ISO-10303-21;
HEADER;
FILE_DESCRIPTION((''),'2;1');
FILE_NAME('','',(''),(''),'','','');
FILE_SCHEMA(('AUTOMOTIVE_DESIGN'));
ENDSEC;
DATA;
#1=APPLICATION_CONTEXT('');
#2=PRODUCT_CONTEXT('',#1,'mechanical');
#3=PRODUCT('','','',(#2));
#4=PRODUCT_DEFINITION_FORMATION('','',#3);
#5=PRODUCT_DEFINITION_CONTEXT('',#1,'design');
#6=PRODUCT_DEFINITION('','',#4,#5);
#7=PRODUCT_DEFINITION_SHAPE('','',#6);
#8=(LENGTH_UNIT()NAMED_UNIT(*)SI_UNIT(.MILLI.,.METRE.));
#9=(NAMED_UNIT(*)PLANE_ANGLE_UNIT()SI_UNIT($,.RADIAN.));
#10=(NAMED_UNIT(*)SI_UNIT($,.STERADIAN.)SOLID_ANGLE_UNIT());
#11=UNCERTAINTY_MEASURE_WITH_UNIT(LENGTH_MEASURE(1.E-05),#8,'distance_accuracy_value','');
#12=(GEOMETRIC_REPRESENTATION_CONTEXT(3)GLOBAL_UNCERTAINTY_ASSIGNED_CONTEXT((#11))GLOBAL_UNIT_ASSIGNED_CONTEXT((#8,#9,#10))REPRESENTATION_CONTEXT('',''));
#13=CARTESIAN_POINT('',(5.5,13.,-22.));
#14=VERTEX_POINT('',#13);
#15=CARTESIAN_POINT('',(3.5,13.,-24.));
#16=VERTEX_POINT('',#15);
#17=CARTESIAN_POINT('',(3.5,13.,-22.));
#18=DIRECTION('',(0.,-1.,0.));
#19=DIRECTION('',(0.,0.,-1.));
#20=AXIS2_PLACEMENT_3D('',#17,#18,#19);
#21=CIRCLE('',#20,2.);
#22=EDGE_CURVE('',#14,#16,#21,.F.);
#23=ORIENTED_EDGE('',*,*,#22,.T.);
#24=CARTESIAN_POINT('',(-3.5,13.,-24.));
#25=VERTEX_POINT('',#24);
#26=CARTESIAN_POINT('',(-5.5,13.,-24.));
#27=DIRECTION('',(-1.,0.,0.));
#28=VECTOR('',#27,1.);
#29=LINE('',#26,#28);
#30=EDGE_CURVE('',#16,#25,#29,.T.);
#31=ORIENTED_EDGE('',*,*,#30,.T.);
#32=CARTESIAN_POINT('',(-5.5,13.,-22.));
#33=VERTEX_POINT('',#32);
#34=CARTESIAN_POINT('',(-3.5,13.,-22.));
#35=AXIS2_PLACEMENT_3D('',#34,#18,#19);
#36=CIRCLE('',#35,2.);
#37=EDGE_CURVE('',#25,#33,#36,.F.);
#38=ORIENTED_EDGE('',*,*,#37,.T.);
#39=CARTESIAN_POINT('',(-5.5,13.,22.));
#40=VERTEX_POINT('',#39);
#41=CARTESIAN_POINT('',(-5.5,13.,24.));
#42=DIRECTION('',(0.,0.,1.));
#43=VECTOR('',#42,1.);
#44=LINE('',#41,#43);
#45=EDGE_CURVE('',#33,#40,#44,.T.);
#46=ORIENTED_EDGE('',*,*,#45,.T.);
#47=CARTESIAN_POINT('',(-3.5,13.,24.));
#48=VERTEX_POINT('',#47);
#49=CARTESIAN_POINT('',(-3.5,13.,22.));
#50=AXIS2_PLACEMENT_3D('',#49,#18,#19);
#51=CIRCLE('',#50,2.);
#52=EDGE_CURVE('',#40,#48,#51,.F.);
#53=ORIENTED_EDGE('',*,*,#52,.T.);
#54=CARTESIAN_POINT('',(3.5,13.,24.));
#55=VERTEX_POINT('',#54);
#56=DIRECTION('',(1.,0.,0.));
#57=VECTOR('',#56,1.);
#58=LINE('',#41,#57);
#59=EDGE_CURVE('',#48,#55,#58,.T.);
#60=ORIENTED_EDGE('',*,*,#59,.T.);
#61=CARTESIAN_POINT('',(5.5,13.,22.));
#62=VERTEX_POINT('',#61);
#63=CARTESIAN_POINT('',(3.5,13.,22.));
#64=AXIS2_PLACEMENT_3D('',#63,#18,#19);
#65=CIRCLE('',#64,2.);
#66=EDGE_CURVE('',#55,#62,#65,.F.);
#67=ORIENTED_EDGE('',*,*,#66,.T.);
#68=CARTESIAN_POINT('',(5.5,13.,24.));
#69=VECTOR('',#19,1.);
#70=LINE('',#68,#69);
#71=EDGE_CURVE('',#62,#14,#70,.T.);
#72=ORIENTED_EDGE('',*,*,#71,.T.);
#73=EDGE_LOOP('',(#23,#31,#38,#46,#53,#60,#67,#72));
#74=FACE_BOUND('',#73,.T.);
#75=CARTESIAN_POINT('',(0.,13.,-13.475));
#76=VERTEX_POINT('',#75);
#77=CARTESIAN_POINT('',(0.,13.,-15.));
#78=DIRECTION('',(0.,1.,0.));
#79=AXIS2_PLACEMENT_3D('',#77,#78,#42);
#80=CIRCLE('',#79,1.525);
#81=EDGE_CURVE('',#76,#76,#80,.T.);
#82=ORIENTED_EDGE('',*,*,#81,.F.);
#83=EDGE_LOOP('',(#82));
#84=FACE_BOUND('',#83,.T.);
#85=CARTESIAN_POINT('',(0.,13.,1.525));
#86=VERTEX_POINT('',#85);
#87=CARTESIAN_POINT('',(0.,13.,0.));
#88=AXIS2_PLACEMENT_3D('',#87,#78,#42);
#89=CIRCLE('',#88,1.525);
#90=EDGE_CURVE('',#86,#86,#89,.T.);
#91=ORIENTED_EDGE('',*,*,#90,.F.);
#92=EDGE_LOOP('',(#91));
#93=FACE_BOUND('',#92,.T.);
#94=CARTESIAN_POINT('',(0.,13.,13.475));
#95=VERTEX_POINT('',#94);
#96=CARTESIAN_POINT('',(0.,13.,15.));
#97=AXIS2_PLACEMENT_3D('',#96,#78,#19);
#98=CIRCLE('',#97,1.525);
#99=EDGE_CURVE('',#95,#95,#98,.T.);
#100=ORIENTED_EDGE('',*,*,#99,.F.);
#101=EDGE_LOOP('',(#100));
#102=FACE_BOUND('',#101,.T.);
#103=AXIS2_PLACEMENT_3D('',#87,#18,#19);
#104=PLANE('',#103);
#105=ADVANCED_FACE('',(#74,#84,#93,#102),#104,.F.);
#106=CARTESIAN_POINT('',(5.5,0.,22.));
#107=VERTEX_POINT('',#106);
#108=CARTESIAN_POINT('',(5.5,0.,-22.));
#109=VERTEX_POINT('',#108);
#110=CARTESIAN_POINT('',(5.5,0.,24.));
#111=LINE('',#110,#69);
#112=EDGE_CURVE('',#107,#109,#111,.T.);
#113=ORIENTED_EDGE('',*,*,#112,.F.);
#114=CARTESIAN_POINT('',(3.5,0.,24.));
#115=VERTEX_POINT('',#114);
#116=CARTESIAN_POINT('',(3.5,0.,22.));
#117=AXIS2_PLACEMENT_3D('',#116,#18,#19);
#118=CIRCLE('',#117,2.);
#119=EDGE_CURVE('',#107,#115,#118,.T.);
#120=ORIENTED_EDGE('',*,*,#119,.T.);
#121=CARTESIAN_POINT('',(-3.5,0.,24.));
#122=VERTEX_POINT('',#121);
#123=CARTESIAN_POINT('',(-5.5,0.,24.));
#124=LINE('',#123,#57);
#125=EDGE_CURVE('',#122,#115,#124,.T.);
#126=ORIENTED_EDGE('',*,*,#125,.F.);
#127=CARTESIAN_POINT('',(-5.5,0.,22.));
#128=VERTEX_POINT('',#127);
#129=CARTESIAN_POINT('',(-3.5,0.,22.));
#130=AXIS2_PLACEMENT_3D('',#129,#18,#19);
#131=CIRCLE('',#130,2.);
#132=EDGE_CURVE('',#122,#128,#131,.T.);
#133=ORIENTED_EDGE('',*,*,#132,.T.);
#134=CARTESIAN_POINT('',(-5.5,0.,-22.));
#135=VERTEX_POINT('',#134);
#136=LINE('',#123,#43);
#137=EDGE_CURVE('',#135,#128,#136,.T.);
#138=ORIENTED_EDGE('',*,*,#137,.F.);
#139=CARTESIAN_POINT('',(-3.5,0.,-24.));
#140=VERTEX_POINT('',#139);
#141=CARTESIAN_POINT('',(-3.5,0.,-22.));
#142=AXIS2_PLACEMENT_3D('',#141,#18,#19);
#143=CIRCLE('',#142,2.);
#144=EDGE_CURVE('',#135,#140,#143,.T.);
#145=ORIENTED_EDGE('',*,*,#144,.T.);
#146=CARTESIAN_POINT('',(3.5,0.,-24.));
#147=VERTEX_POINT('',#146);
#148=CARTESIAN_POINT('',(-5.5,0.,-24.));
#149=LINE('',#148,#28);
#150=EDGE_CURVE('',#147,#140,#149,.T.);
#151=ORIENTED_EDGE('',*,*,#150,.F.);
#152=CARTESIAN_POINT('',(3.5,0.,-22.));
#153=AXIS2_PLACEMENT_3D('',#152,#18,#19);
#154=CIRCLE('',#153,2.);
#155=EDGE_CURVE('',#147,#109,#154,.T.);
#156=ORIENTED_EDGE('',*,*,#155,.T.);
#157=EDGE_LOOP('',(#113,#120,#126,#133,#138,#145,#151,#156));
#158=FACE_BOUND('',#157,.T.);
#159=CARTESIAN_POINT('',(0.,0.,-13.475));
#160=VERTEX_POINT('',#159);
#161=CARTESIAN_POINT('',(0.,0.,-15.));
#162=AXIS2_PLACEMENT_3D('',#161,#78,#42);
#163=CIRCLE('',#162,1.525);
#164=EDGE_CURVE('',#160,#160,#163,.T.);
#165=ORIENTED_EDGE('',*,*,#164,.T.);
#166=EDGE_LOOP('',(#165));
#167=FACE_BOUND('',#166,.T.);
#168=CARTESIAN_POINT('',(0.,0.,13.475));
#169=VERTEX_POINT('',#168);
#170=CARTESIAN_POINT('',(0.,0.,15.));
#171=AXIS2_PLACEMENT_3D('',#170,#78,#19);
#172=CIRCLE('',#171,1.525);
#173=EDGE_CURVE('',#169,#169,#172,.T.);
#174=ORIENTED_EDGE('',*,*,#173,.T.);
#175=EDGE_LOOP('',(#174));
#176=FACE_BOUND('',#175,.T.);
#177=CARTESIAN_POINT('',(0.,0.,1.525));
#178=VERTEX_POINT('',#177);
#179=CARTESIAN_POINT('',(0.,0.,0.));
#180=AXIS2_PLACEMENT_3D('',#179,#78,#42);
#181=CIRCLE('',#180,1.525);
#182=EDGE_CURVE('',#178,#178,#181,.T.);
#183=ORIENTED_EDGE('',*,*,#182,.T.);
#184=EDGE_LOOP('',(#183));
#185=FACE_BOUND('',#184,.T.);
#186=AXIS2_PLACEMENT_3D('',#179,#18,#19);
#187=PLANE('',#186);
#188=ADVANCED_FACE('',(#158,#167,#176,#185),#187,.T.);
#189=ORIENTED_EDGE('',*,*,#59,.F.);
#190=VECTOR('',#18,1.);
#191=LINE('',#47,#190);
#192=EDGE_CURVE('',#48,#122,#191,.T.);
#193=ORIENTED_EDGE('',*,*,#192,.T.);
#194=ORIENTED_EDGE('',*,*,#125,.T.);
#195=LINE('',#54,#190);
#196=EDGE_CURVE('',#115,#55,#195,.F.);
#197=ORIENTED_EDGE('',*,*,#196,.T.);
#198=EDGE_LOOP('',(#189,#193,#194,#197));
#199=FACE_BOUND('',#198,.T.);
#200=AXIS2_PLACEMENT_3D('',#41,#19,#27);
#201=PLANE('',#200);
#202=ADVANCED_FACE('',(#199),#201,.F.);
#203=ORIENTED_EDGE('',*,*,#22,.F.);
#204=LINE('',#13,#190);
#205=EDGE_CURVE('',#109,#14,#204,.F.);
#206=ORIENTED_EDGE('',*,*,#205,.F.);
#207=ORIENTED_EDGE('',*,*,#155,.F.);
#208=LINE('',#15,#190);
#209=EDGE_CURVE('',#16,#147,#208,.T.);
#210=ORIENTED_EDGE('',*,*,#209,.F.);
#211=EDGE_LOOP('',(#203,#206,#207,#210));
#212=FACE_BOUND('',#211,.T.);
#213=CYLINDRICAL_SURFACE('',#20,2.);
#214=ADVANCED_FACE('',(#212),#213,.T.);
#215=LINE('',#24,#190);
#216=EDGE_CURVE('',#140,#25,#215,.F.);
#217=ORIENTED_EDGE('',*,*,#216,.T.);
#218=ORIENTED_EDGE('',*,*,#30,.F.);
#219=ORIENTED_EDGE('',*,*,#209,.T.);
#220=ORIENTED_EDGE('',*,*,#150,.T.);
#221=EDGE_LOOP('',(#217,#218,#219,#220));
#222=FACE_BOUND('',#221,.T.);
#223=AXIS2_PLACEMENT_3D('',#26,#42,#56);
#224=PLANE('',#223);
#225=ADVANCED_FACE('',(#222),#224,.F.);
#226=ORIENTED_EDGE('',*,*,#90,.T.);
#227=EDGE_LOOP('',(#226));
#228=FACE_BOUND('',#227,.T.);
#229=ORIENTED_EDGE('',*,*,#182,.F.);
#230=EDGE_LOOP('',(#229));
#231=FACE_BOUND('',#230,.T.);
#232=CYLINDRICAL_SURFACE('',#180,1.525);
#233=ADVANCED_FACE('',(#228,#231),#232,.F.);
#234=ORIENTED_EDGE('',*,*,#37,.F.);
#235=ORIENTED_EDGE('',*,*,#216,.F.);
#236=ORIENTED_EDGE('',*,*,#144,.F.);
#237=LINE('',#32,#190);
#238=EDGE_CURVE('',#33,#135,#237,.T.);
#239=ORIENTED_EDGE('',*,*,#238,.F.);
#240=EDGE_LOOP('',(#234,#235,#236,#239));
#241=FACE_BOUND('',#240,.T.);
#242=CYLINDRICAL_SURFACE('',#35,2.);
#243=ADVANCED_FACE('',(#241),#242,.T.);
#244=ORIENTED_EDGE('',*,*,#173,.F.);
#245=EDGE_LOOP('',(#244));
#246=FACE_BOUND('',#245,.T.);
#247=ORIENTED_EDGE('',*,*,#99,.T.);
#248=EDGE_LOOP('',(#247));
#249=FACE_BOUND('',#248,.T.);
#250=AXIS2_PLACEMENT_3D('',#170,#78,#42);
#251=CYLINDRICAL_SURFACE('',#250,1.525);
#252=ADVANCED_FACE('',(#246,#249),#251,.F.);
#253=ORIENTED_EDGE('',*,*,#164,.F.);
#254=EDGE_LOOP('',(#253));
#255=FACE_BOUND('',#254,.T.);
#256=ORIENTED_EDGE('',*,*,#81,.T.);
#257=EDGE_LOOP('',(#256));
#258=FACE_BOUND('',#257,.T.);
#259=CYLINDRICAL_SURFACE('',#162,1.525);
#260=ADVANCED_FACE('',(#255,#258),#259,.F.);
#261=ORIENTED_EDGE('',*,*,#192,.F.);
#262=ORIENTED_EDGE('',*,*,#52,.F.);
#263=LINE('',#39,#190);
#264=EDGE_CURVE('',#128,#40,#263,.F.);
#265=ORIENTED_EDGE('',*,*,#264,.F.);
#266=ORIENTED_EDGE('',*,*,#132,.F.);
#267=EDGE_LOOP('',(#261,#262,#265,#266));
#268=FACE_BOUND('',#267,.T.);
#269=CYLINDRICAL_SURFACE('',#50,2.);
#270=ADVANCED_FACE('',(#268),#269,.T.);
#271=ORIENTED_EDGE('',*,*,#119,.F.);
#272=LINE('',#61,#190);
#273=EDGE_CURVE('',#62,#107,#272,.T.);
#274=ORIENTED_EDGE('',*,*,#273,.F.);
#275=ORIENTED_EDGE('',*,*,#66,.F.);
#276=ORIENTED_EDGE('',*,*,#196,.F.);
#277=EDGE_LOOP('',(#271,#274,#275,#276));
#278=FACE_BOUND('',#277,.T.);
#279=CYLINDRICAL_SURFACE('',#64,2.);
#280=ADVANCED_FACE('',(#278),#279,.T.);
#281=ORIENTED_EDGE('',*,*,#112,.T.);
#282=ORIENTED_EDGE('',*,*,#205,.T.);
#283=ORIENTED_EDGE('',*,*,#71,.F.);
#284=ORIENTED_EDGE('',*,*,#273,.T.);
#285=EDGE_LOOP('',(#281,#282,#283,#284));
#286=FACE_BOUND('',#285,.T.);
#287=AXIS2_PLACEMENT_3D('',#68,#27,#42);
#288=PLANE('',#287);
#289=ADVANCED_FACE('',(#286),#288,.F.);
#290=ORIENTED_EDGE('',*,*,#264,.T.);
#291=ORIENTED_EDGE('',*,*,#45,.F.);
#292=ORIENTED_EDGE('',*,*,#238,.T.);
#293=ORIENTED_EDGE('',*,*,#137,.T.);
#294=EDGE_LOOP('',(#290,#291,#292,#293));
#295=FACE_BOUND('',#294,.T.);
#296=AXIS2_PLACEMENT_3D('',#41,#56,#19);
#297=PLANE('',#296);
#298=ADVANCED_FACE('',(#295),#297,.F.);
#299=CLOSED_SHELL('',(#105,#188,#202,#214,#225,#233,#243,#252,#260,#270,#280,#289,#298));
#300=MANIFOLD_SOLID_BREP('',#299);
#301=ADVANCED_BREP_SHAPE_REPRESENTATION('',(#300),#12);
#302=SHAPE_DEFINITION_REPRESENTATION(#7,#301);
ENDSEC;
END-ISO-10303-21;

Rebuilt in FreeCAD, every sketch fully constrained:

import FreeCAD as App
import Part
import Sketcher

V = App.Vector
Q = App.Units.Quantity


def edges_at(feature, points):
    """Names of the edges that pass closest to the given points."""
    edges = feature.Shape.Edges
    near = lambda p: min(range(len(edges)), key=lambda i: edges[i].distToShape(Part.Vertex(*p))[0])
    return sorted({f"Edge{near(p) + 1}" for p in points})

doc = App.newDocument("Part")
body = doc.addObject("PartDesign::Body", "Body")

sketch1 = body.newObject("Sketcher::SketchObject", "Sketch")
sketch1.AttachmentSupport = (doc.getObject("XZ_Plane"), [""])
sketch1.MapMode = "FlatFace"
sketch1.addGeometry([
    Part.LineSegment(V(-6, -24, 0), V(-6, 24, 0)),
    Part.LineSegment(V(-6, 24, 0), V(6, 24, 0)),
    Part.LineSegment(V(6, 24, 0), V(6, -24, 0)),
    Part.LineSegment(V(6, -24, 0), V(-6, -24, 0)),
], False)
sketch1.addConstraint([
    Sketcher.Constraint("Coincident", 0, 2, 1, 1),
    Sketcher.Constraint("Coincident", 1, 2, 2, 1),
    Sketcher.Constraint("Coincident", 2, 2, 3, 1),
    Sketcher.Constraint("Coincident", 3, 2, 0, 1),
    Sketcher.Constraint("Vertical", 0),
    Sketcher.Constraint("Horizontal", 1),
    Sketcher.Constraint("Vertical", 2),
    Sketcher.Constraint("Horizontal", 3),
    Sketcher.Constraint("Symmetric", 0, 2, 2, 2, -1, 1),
    Sketcher.Constraint("DistanceX", 1, 1, 1, 2, Q("11 mm")),
    Sketcher.Constraint("DistanceY", 0, 1, 0, 2, Q("48 mm")),
])
pad1 = body.newObject("PartDesign::Pad", "Pad")
pad1.Profile = sketch1
pad1.Length = 13
pad1.Reversed = True
doc.recompute()

fillet = body.newObject("PartDesign::Fillet", "Fillet")
fillet.Base = (pad1, edges_at(pad1, [
    (5.5, 6.5, 24),
    (-5.5, 6.5, 24),
    (-5.5, 6.5, -24),
    (5.5, 6.5, -24),
]))
fillet.Radius = 2

sketch2 = body.newObject("Sketcher::SketchObject", "Sketch001")
sketch2.AttachmentSupport = (doc.getObject("XZ_Plane"), [""])
sketch2.MapMode = "FlatFace"
sketch2.AttachmentOffset = App.Placement(V(0, 0, -13), App.Rotation())
sketch2.addGeometry([
    Part.Circle(V(0, 0, 0), V(0, 0, 1), 1.5),
    Part.Circle(V(0, -15, 0), V(0, 0, 1), 1.5),
    Part.Circle(V(0, 15, 0), V(0, 0, 1), 1.5),
], False)
sketch2.addConstraint([
    Sketcher.Constraint("Coincident", 0, 3, -1, 1),
    Sketcher.Constraint("Equal", 0, 1),
    Sketcher.Constraint("Equal", 1, 2),
    Sketcher.Constraint("Symmetric", 1, 3, 2, 3, -1, 1),
    Sketcher.Constraint("PointOnObject", 1, 3, -2),
    Sketcher.Constraint("Diameter", 0, Q("3.05 mm")),
    Sketcher.Constraint("DistanceY", 1, 3, -1, 1, Q("15 mm")),
])
pocket1 = body.newObject("PartDesign::Pocket", "Pocket")
pocket1.Profile = sketch2
pocket1.Type = "ThroughAll"
pocket1.Reversed = True

doc.recompute()
